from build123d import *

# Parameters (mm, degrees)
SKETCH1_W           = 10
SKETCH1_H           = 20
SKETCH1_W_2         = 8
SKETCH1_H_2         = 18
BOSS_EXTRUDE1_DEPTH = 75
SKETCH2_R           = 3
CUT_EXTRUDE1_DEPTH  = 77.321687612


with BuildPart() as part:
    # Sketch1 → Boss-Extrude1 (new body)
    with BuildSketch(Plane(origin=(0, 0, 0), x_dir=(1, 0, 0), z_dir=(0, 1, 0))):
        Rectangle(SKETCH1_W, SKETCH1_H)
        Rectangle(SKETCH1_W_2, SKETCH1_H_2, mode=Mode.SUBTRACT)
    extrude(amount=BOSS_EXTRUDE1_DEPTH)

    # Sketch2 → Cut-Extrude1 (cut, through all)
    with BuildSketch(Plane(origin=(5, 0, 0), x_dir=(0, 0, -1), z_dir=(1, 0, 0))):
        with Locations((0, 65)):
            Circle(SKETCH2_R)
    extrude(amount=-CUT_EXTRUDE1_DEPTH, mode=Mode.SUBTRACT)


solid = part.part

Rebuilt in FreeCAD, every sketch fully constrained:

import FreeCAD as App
import Part
import Sketcher
Q = App.Units.Quantity

doc = App.newDocument("Part")
body = doc.addObject("PartDesign::Body", "Body")

# Sketch on XZ plane
sketch1 = body.newObject("Sketcher::SketchObject", "Sketch")
sketch1.AttachmentSupport = (doc.getObject("XZ_Plane"), [""])
sketch1.MapMode = "FlatFace"
sketch1.addGeometry(Part.LineSegment(App.Vector(-5, -10, 0), App.Vector(-5, 10, 0)), False)
sketch1.addGeometry(Part.LineSegment(App.Vector(-5, 10, 0), App.Vector(5, 10, 0)), False)
sketch1.addGeometry(Part.LineSegment(App.Vector(5, 10, 0), App.Vector(5, -10, 0)), False)
sketch1.addGeometry(Part.LineSegment(App.Vector(5, -10, 0), App.Vector(-5, -10, 0)), False)
sketch1.addGeometry(Part.LineSegment(App.Vector(4, 9, 0), App.Vector(-4, 9, 0)), False)
sketch1.addGeometry(Part.LineSegment(App.Vector(-4, 9, 0), App.Vector(-4, -9, 0)), False)
sketch1.addGeometry(Part.LineSegment(App.Vector(-4, -9, 0), App.Vector(4, -9, 0)), False)
sketch1.addGeometry(Part.LineSegment(App.Vector(4, -9, 0), App.Vector(4, 9, 0)), False)
sketch1.addConstraint(Sketcher.Constraint("Coincident", 0, 2, 1, 1))
sketch1.addConstraint(Sketcher.Constraint("Coincident", 1, 2, 2, 1))
sketch1.addConstraint(Sketcher.Constraint("Coincident", 2, 2, 3, 1))
sketch1.addConstraint(Sketcher.Constraint("Coincident", 3, 2, 0, 1))
sketch1.addConstraint(Sketcher.Constraint("Coincident", 4, 2, 5, 1))
sketch1.addConstraint(Sketcher.Constraint("Coincident", 5, 2, 6, 1))
sketch1.addConstraint(Sketcher.Constraint("Coincident", 6, 2, 7, 1))
sketch1.addConstraint(Sketcher.Constraint("Coincident", 7, 2, 4, 1))
sketch1.addConstraint(Sketcher.Constraint("Vertical", 0))
sketch1.addConstraint(Sketcher.Constraint("Horizontal", 1))
sketch1.addConstraint(Sketcher.Constraint("Vertical", 2))
sketch1.addConstraint(Sketcher.Constraint("Horizontal", 3))
sketch1.addConstraint(Sketcher.Constraint("Horizontal", 4))
sketch1.addConstraint(Sketcher.Constraint("Vertical", 5))
sketch1.addConstraint(Sketcher.Constraint("Horizontal", 6))
sketch1.addConstraint(Sketcher.Constraint("Vertical", 7))
sketch1.addConstraint(Sketcher.Constraint("Symmetric", 0, 2, 2, 2, -1, 1))
sketch1.addConstraint(Sketcher.Constraint("Symmetric", 4, 2, 6, 2, -1, 1))
sketch1.addConstraint(Sketcher.Constraint("DistanceX", 1, 1, 1, 2, Q("10 mm")))
sketch1.addConstraint(Sketcher.Constraint("DistanceX", 4, 2, 4, 1, Q("8 mm")))
sketch1.addConstraint(Sketcher.Constraint("DistanceY", 0, 1, 0, 2, Q("20 mm")))
sketch1.addConstraint(Sketcher.Constraint("DistanceY", 5, 2, 5, 1, Q("18 mm")))
pad1 = body.newObject("PartDesign::Pad", "Pad")
pad1.Profile = sketch1
pad1.Length = 75
pad1.Reversed = True

# Sketch on YZ plane
sketch2 = body.newObject("Sketcher::SketchObject", "Sketch001")
sketch2.AttachmentSupport = (doc.getObject("YZ_Plane"), [""])
sketch2.MapMode = "FlatFace"
sketch2.AttachmentOffset = App.Placement(App.Vector(0, 0, 5), App.Rotation())
sketch2.addGeometry(Part.Circle(App.Vector(65, 0, 0), App.Vector(0, 0, 1), 3), False)
sketch2.addConstraint(Sketcher.Constraint("PointOnObject", 0, 3, -1))
sketch2.addConstraint(Sketcher.Constraint("Diameter", 0, Q("6 mm")))
sketch2.addConstraint(Sketcher.Constraint("DistanceX", -1, 1, 0, 3, Q("65 mm")))
pocket1 = body.newObject("PartDesign::Pocket", "Pocket")
pocket1.Profile = sketch2
pocket1.Type = "ThroughAll"

doc.recompute()
